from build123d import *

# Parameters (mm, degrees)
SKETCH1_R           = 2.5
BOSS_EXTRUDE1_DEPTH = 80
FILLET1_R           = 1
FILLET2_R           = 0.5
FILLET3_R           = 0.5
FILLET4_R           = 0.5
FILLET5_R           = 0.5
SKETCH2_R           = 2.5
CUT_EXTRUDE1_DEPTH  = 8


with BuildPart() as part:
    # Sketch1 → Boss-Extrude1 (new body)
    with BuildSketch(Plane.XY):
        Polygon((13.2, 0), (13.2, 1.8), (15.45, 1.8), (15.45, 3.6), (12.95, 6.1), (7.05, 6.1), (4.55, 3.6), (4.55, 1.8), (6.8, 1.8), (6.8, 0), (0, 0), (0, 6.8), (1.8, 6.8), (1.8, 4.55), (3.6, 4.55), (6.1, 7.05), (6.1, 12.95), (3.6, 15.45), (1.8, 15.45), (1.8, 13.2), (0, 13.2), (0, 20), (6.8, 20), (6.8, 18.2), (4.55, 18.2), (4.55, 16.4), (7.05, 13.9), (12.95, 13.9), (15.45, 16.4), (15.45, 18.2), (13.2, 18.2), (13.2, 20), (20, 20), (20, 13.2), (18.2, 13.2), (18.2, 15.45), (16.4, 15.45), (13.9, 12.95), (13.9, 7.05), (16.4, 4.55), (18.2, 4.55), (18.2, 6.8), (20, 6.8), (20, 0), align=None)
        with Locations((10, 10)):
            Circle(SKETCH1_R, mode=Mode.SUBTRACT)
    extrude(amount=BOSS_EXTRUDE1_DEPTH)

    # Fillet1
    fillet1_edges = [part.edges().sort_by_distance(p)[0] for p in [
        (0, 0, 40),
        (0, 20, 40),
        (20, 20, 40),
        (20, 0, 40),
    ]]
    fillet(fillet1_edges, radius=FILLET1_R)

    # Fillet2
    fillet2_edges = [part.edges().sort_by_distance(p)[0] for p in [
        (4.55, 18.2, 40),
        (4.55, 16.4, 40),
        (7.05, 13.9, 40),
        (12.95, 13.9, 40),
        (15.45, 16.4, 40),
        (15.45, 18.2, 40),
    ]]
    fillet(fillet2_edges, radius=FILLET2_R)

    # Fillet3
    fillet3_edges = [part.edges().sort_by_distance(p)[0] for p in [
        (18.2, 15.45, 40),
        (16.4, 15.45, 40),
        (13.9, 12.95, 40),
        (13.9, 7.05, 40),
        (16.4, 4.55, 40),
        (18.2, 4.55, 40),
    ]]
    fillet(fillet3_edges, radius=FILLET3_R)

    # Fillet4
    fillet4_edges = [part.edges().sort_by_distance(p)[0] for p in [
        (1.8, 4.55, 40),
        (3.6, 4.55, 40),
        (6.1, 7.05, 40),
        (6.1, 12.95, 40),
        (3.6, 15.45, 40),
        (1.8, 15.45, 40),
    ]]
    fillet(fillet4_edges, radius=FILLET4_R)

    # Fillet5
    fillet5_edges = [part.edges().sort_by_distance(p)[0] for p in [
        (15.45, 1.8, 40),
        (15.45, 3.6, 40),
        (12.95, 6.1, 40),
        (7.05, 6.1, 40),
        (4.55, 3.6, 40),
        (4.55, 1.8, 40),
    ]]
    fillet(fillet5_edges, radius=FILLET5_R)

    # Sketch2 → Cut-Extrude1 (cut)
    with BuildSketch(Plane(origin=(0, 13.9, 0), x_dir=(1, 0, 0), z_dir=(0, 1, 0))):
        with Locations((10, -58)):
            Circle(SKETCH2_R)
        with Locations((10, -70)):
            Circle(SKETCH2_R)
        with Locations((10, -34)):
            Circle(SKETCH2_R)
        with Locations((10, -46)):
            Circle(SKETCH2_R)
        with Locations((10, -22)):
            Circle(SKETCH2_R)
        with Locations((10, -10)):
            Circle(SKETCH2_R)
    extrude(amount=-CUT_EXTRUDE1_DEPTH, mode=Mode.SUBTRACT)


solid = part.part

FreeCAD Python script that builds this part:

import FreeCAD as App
import Part
import Sketcher
from FreeCAD import Vector


def edges_at(feature, points):
    """Names of the edges that pass closest to the given points."""
    edges = feature.Shape.Edges
    near = lambda p: min(range(len(edges)), key=lambda i: edges[i].distToShape(Part.Vertex(*p))[0])
    return sorted({f"Edge{near(p) + 1}" for p in points})

doc = App.newDocument("Part")
body = doc.addObject("PartDesign::Body", "Body")

# Sketch on XY plane
sketch1 = body.newObject("Sketcher::SketchObject", "Sketch")
sketch1.AttachmentSupport = (doc.getObject("XY_Plane"), [""])
sketch1.MapMode = "FlatFace"
sketch1.addGeometry([
    Part.LineSegment(Vector(13.2, 1.8, 0), Vector(13.2, 0, 0)),  # 0
    Part.LineSegment(Vector(13.2, 0, 0), Vector(20, 0, 0)),  # 1
    Part.LineSegment(Vector(20, 0, 0), Vector(20, 6.8, 0)),  # 2
    Part.LineSegment(Vector(20, 6.8, 0), Vector(18.2, 6.8, 0)),  # 3
    Part.LineSegment(Vector(18.2, 6.8, 0), Vector(18.2, 4.55, 0)),  # 4
    Part.LineSegment(Vector(18.2, 4.55, 0), Vector(16.4, 4.55, 0)),  # 5
    Part.LineSegment(Vector(16.4, 4.55, 0), Vector(13.9, 7.05, 0)),  # 6
    Part.LineSegment(Vector(13.9, 7.05, 0), Vector(13.9, 12.95, 0)),  # 7
    Part.LineSegment(Vector(13.9, 12.95, 0), Vector(16.4, 15.45, 0)),  # 8
    Part.LineSegment(Vector(16.4, 15.45, 0), Vector(18.2, 15.45, 0)),  # 9
    Part.LineSegment(Vector(18.2, 15.45, 0), Vector(18.2, 13.2, 0)),  # 10
    Part.LineSegment(Vector(18.2, 13.2, 0), Vector(20, 13.2, 0)),  # 11
    Part.LineSegment(Vector(20, 13.2, 0), Vector(20, 20, 0)),  # 12
    Part.LineSegment(Vector(20, 20, 0), Vector(13.2, 20, 0)),  # 13
    Part.LineSegment(Vector(13.2, 20, 0), Vector(13.2, 18.2, 0)),  # 14
    Part.LineSegment(Vector(13.2, 18.2, 0), Vector(15.45, 18.2, 0)),  # 15
    Part.LineSegment(Vector(15.45, 18.2, 0), Vector(15.45, 16.4, 0)),  # 16
    Part.LineSegment(Vector(15.45, 16.4, 0), Vector(12.95, 13.9, 0)),  # 17
    Part.LineSegment(Vector(12.95, 13.9, 0), Vector(7.05, 13.9, 0)),  # 18
    Part.LineSegment(Vector(7.05, 13.9, 0), Vector(4.55, 16.4, 0)),  # 19
    Part.LineSegment(Vector(4.55, 16.4, 0), Vector(4.55, 18.2, 0)),  # 20
    Part.LineSegment(Vector(4.55, 18.2, 0), Vector(6.8, 18.2, 0)),  # 21
    Part.LineSegment(Vector(6.8, 18.2, 0), Vector(6.8, 20, 0)),  # 22
    Part.LineSegment(Vector(6.8, 20, 0), Vector(0, 20, 0)),  # 23
    Part.LineSegment(Vector(0, 20, 0), Vector(0, 13.2, 0)),  # 24
    Part.LineSegment(Vector(0, 13.2, 0), Vector(1.8, 13.2, 0)),  # 25
    Part.LineSegment(Vector(1.8, 13.2, 0), Vector(1.8, 15.45, 0)),  # 26
    Part.LineSegment(Vector(1.8, 15.45, 0), Vector(3.6, 15.45, 0)),  # 27
    Part.LineSegment(Vector(3.6, 15.45, 0), Vector(6.1, 12.95, 0)),  # 28
    Part.LineSegment(Vector(6.1, 12.95, 0), Vector(6.1, 7.05, 0)),  # 29
    Part.LineSegment(Vector(6.1, 7.05, 0), Vector(3.6, 4.55, 0)),  # 30
    Part.LineSegment(Vector(3.6, 4.55, 0), Vector(1.8, 4.55, 0)),  # 31
    Part.LineSegment(Vector(1.8, 4.55, 0), Vector(1.8, 6.8, 0)),  # 32
    Part.LineSegment(Vector(1.8, 6.8, 0), Vector(0, 6.8, 0)),  # 33
    Part.LineSegment(Vector(0, 6.8, 0), Vector(0, 0, 0)),  # 34
    Part.LineSegment(Vector(0, 0, 0), Vector(6.8, 0, 0)),  # 35
    Part.LineSegment(Vector(6.8, 0, 0), Vector(6.8, 1.8, 0)),  # 36
    Part.LineSegment(Vector(6.8, 1.8, 0), Vector(4.55, 1.8, 0)),  # 37
    Part.LineSegment(Vector(4.55, 1.8, 0), Vector(4.55, 3.6, 0)),  # 38
    Part.LineSegment(Vector(4.55, 3.6, 0), Vector(7.05, 6.1, 0)),  # 39
    Part.LineSegment(Vector(7.05, 6.1, 0), Vector(12.95, 6.1, 0)),  # 40
    Part.LineSegment(Vector(12.95, 6.1, 0), Vector(15.45, 3.6, 0)),  # 41
    Part.LineSegment(Vector(15.45, 3.6, 0), Vector(15.45, 1.8, 0)),  # 42
    Part.LineSegment(Vector(15.45, 1.8, 0), Vector(13.2, 1.8, 0)),  # 43
    Part.Circle(Vector(10, 10, 0), Vector(0, 0, 1), 2.5),  # 44
], False)
sketch1.addConstraint([
    Sketcher.Constraint("Coincident", 0, 2, 1, 1),
    Sketcher.Constraint("Coincident", 1, 2, 2, 1),
    Sketcher.Constraint("Coincident", 2, 2, 3, 1),
    Sketcher.Constraint("Coincident", 3, 2, 4, 1),
    Sketcher.Constraint("Coincident", 4, 2, 5, 1),
    Sketcher.Constraint("Coincident", 5, 2, 6, 1),
    Sketcher.Constraint("Coincident", 6, 2, 7, 1),
    Sketcher.Constraint("Coincident", 7, 2, 8, 1),
    Sketcher.Constraint("Coincident", 8, 2, 9, 1),
    Sketcher.Constraint("Coincident", 9, 2, 10, 1),
    Sketcher.Constraint("Coincident", 10, 2, 11, 1),
    Sketcher.Constraint("Coincident", 11, 2, 12, 1),
    Sketcher.Constraint("Coincident", 12, 2, 13, 1),
    Sketcher.Constraint("Coincident", 13, 2, 14, 1),
    Sketcher.Constraint("Coincident", 14, 2, 15, 1),
    Sketcher.Constraint("Coincident", 15, 2, 16, 1),
    Sketcher.Constraint("Coincident", 16, 2, 17, 1),
    Sketcher.Constraint("Coincident", 17, 2, 18, 1),
    Sketcher.Constraint("Coincident", 18, 2, 19, 1),
    Sketcher.Constraint("Coincident", 19, 2, 20, 1),
    Sketcher.Constraint("Coincident", 20, 2, 21, 1),
    Sketcher.Constraint("Coincident", 21, 2, 22, 1),
    Sketcher.Constraint("Coincident", 22, 2, 23, 1),
    Sketcher.Constraint("Coincident", 23, 2, 24, 1),
    Sketcher.Constraint("Coincident", 24, 2, 25, 1),
    Sketcher.Constraint("Coincident", 25, 2, 26, 1),
    Sketcher.Constraint("Coincident", 26, 2, 27, 1),
    Sketcher.Constraint("Coincident", 27, 2, 28, 1),
    Sketcher.Constraint("Coincident", 28, 2, 29, 1),
    Sketcher.Constraint("Coincident", 29, 2, 30, 1),
    Sketcher.Constraint("Coincident", 30, 2, 31, 1),
    Sketcher.Constraint("Coincident", 31, 2, 32, 1),
    Sketcher.Constraint("Coincident", 32, 2, 33, 1),
    Sketcher.Constraint("Coincident", 33, 2, 34, 1),
    Sketcher.Constraint("Coincident", 34, 2, 35, 1),
    Sketcher.Constraint("Coincident", 35, 2, 36, 1),
    Sketcher.Constraint("Coincident", 36, 2, 37, 1),
    Sketcher.Constraint("Coincident", 37, 2, 38, 1),
    Sketcher.Constraint("Coincident", 38, 2, 39, 1),
    Sketcher.Constraint("Coincident", 39, 2, 40, 1),
    Sketcher.Constraint("Coincident", 40, 2, 41, 1),
    Sketcher.Constraint("Coincident", 41, 2, 42, 1),
    Sketcher.Constraint("Coincident", 42, 2, 43, 1),
    Sketcher.Constraint("Coincident", 43, 2, 0, 1),
    Sketcher.Constraint("Vertical", 0),
    Sketcher.Constraint("Horizontal", 1),
    Sketcher.Constraint("Vertical", 2),
    Sketcher.Constraint("Horizontal", 3),
    Sketcher.Constraint("Vertical", 4),
    Sketcher.Constraint("Horizontal", 5),
    Sketcher.Constraint("Vertical", 7),
    Sketcher.Constraint("Horizontal", 9),
    Sketcher.Constraint("Vertical", 10),
    Sketcher.Constraint("Horizontal", 11),
    Sketcher.Constraint("Vertical", 12),
    Sketcher.Constraint("Horizontal", 13),
    Sketcher.Constraint("Vertical", 14),
    Sketcher.Constraint("Horizontal", 15),
    Sketcher.Constraint("Vertical", 16),
    Sketcher.Constraint("Horizontal", 18),
    Sketcher.Constraint("Vertical", 20),
    Sketcher.Constraint("Horizontal", 21),
    Sketcher.Constraint("Vertical", 22),
    Sketcher.Constraint("Horizontal", 23),
    Sketcher.Constraint("Vertical", 24),
    Sketcher.Constraint("Horizontal", 25),
    Sketcher.Constraint("Vertical", 26),
    Sketcher.Constraint("Horizontal", 27),
    Sketcher.Constraint("Vertical", 29),
    Sketcher.Constraint("Horizontal", 31),
    Sketcher.Constraint("Vertical", 32),
    Sketcher.Constraint("Horizontal", 33),
    Sketcher.Constraint("Vertical", 34),
    Sketcher.Constraint("Horizontal", 35),
    Sketcher.Constraint("Vertical", 36),
    Sketcher.Constraint("Horizontal", 37),
    Sketcher.Constraint("Vertical", 38),
    Sketcher.Constraint("Horizontal", 40),
    Sketcher.Constraint("Vertical", 42),
    Sketcher.Constraint("Horizontal", 43),
    Sketcher.Constraint("Coincident", 34, 2, -1, 1),
    Sketcher.Constraint("PointOnObject", 0, 2, -1),
    Sketcher.Constraint("PointOnObject", 23, 2, -2),
    Sketcher.Constraint("Perpendicular", 6, 8),
    Sketcher.Constraint("Parallel", 8, 17),
    Sketcher.Constraint("Perpendicular", 17, 19),
    Sketcher.Constraint("Parallel", 19, 28),
    Sketcher.Constraint("Perpendicular", 28, 30),
    Sketcher.Constraint("Parallel", 30, 39),
    Sketcher.Constraint("Perpendicular", 39, 41),
    Sketcher.Constraint("Horizontal", 16, 2, 19, 2),
    Sketcher.Constraint("Horizontal", 15, 2, 20, 2),
    Sketcher.Constraint("Horizontal", 13, 2, 22, 2),
    Sketcher.Constraint("Horizontal", 11, 2, 24, 2),
    Sketcher.Constraint("Horizontal", 9, 2, 26, 2),
    Sketcher.Constraint("Horizontal", 7, 2, 28, 2),
    Sketcher.Constraint("Horizontal", 6, 2, 29, 2),
    Sketcher.Constraint("Horizontal", 5, 2, 30, 2),
    Sketcher.Constraint("Horizontal", 3, 2, 32, 2),
    Sketcher.Constraint("Horizontal", 38, 2, 41, 2),
    Sketcher.Constraint("Horizontal", 37, 2, 42, 2),
    Sketcher.Constraint("Vertical", 5, 2, 8, 2),
    Sketcher.Constraint("Vertical", 4, 2, 9, 2),
    Sketcher.Constraint("Vertical", 2, 2, 11, 2),
    Sketcher.Constraint("Vertical", 0, 2, 13, 2),
    Sketcher.Constraint("Vertical", 27, 2, 30, 2),
    Sketcher.Constraint("Vertical", 26, 2, 31, 2),
    Sketcher.Constraint("Vertical", 22, 2, 35, 2),
    Sketcher.Constraint("Vertical", 20, 2, 37, 2),
    Sketcher.Constraint("Vertical", 18, 2, 39, 2),
    Sketcher.Constraint("Vertical", 17, 2, 40, 2),
    Sketcher.Constraint("Equal", 3, 5),
    Sketcher.Constraint("Equal", 15, 21),
    Sketcher.Constraint("Equal", 13, 23),
    Sketcher.Constraint("Equal", 11, 25),
    Sketcher.Constraint("Equal", 25, 27),
    Sketcher.Constraint("Equal", 33, 0),
    Sketcher.Constraint("Equal", 35, 2),
    Sketcher.Constraint("Equal", 43, 4),
    Sketcher.Constraint("Equal", 40, 7),
    Sketcher.Constraint("Equal", 4, 10),
    Sketcher.Constraint("Equal", 2, 12),
    Sketcher.Constraint("Equal", 0, 14),
    Sketcher.Constraint("Equal", 14, 16),
    Sketcher.Constraint("Equal", 36, 38),
    Sketcher.Constraint("Equal", 8, 17),
    Sketcher.Constraint("Diameter", 44, 5.0),
    Sketcher.Constraint("DistanceX", 1, 1, 1, 2, 6.8),
    Sketcher.Constraint("DistanceX", 3, 2, 3, 1, 1.8),
    Sketcher.Constraint("DistanceX", 18, 2, 18, 1, 5.9),
    Sketcher.Constraint("DistanceX", -1, 1, 44, 3, 10.0),
    Sketcher.Constraint("DistanceY", -1, 1, 44, 3, 10.0),
    Sketcher.Constraint("DistanceX", -1, 1, 1, 2, 20.0),
    Sketcher.Constraint("DistanceX", 15, 1, 15, 2, 2.25),
])
pad1 = body.newObject("PartDesign::Pad", "Pad")
pad1.Profile = sketch1
pad1.Length = 80
doc.recompute()

fillet = body.newObject("PartDesign::Fillet", "Fillet")
fillet.Base = (pad1, edges_at(pad1, [
    (0, 0, 40),
    (0, 20, 40),
    (20, 20, 40),
    (20, 0, 40),
]))
fillet.Radius = 1
doc.recompute()

fillet2 = body.newObject("PartDesign::Fillet", "Fillet001")
fillet2.Base = (fillet, edges_at(fillet, [
    (4.55, 18.2, 40),
    (4.55, 16.4, 40),
    (7.05, 13.9, 40),
    (12.95, 13.9, 40),
    (15.45, 16.4, 40),
    (15.45, 18.2, 40),
]))
fillet2.Radius = 0.5
doc.recompute()

fillet3 = body.newObject("PartDesign::Fillet", "Fillet002")
fillet3.Base = (fillet2, edges_at(fillet2, [
    (18.2, 15.45, 40),
    (16.4, 15.45, 40),
    (13.9, 12.95, 40),
    (13.9, 7.05, 40),
    (16.4, 4.55, 40),
    (18.2, 4.55, 40),
]))
fillet3.Radius = 0.5
doc.recompute()

fillet4 = body.newObject("PartDesign::Fillet", "Fillet003")
fillet4.Base = (fillet3, edges_at(fillet3, [
    (1.8, 4.55, 40),
    (3.6, 4.55, 40),
    (6.1, 7.05, 40),
    (6.1, 12.95, 40),
    (3.6, 15.45, 40),
    (1.8, 15.45, 40),
]))
fillet4.Radius = 0.5
doc.recompute()

fillet5 = body.newObject("PartDesign::Fillet", "Fillet004")
fillet5.Base = (fillet4, edges_at(fillet4, [
    (15.45, 1.8, 40),
    (15.45, 3.6, 40),
    (12.95, 6.1, 40),
    (7.05, 6.1, 40),
    (4.55, 3.6, 40),
    (4.55, 1.8, 40),
]))
fillet5.Radius = 0.5

# Sketch on XZ plane
sketch2 = body.newObject("Sketcher::SketchObject", "Sketch001")
sketch2.AttachmentSupport = (doc.getObject("XZ_Plane"), [""])
sketch2.MapMode = "FlatFace"
sketch2.AttachmentOffset = App.Placement(Vector(0, 0, -13.9), App.Rotation())
sketch2.addGeometry([
    Part.Circle(Vector(10, 58, 0), Vector(0, 0, 1), 2.5),  # 0
    Part.Circle(Vector(10, 70, 0), Vector(0, 0, 1), 2.5),  # 1
    Part.Circle(Vector(10, 34, 0), Vector(0, 0, 1), 2.5),  # 2
    Part.Circle(Vector(10, 46, 0), Vector(0, 0, 1), 2.5),  # 3
    Part.Circle(Vector(10, 22, 0), Vector(0, 0, 1), 2.5),  # 4
    Part.Circle(Vector(10, 10, 0), Vector(0, 0, 1), 2.5),  # 5
], False)
sketch2.addConstraint([
    Sketcher.Constraint("Equal", 0, 1),
    Sketcher.Constraint("Equal", 1, 2),
    Sketcher.Constraint("Equal", 2, 3),
    Sketcher.Constraint("Equal", 3, 4),
    Sketcher.Constraint("Equal", 4, 5),
    Sketcher.Constraint("Vertical", 0, 3, 1, 3),
    Sketcher.Constraint("Vertical", 1, 3, 2, 3),
    Sketcher.Constraint("Vertical", 2, 3, 3, 3),
    Sketcher.Constraint("Vertical", 3, 3, 4, 3),
    Sketcher.Constraint("Vertical", 4, 3, 5, 3),
    Sketcher.Constraint("Diameter", 0, 5.0),
    Sketcher.Constraint("DistanceX", -1, 1, 0, 3, 10.0),
    Sketcher.Constraint("DistanceY", -1, 1, 0, 3, 58.0),
    Sketcher.Constraint("DistanceY", -1, 1, 1, 3, 70.0),
    Sketcher.Constraint("DistanceY", -1, 1, 2, 3, 34.0),
    Sketcher.Constraint("DistanceY", -1, 1, 3, 3, 46.0),
    Sketcher.Constraint("DistanceY", -1, 1, 4, 3, 22.0),
    Sketcher.Constraint("DistanceY", -1, 1, 5, 3, 10.0),
])
pocket1 = body.newObject("PartDesign::Pocket", "Pocket")
pocket1.Profile = sketch2
pocket1.Length = 8
pocket1.Reversed = True

doc.recompute()
